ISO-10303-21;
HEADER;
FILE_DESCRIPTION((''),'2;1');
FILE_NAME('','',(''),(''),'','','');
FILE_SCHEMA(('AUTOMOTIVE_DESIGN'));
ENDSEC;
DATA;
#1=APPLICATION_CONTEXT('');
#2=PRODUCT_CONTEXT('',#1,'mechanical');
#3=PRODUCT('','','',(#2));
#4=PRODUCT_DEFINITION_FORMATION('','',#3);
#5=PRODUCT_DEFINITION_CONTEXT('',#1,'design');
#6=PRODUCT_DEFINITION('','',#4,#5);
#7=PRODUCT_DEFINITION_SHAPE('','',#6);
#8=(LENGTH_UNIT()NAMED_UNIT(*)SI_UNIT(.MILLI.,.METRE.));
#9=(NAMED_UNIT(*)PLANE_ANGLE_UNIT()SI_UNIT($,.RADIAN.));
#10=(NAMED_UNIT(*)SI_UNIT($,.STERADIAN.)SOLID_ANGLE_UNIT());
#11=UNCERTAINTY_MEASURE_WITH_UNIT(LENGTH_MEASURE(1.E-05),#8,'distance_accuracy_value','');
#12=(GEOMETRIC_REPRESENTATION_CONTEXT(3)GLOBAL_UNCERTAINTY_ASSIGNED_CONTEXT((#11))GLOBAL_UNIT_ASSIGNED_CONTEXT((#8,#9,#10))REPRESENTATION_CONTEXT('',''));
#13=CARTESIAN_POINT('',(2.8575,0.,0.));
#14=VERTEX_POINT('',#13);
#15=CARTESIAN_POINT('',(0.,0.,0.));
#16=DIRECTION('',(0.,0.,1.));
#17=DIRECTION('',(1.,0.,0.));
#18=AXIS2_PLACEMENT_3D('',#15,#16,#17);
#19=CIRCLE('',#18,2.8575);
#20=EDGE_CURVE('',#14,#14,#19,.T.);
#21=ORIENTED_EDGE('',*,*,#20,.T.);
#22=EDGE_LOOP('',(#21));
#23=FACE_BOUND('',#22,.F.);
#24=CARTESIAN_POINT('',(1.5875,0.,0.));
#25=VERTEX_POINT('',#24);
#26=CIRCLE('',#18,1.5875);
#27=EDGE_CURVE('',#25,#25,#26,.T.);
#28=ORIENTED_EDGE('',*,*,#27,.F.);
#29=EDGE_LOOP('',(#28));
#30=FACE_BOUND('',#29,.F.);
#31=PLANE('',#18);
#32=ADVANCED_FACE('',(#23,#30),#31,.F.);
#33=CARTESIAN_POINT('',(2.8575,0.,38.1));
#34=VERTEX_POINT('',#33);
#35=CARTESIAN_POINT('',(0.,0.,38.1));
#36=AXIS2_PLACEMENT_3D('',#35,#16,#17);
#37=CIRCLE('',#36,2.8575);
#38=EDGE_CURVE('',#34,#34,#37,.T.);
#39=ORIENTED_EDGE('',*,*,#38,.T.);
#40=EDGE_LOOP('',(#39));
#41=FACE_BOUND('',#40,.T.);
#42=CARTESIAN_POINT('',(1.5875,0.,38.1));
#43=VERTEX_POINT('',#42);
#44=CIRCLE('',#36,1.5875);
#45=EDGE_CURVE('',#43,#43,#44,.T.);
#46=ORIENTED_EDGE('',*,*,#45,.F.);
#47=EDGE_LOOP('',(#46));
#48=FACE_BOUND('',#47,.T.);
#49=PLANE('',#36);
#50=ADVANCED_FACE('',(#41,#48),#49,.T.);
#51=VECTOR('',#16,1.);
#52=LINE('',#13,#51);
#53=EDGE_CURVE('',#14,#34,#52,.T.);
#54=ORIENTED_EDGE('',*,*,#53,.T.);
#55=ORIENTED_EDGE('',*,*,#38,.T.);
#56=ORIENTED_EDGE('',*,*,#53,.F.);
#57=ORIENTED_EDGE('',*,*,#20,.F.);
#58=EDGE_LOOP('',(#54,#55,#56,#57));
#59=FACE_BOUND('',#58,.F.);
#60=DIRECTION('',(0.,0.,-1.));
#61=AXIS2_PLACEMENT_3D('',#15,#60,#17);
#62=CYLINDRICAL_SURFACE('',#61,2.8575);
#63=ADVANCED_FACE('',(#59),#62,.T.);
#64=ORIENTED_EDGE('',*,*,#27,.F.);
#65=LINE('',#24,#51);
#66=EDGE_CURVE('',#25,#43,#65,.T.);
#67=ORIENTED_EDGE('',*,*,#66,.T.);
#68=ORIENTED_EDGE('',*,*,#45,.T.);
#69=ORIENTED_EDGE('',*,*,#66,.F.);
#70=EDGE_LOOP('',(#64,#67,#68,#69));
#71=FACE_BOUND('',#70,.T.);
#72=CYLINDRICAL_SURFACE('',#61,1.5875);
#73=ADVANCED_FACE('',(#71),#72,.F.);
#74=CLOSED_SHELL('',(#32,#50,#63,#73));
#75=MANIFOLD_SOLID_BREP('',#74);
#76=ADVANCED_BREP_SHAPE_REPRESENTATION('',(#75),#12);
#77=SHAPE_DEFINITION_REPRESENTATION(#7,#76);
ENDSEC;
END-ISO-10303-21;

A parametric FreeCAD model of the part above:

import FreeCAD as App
import Part
import Sketcher

V = App.Vector
Q = App.Units.Quantity

doc = App.newDocument("Part")
body = doc.addObject("PartDesign::Body", "Body")

sketch1 = body.newObject("Sketcher::SketchObject", "Sketch")
sketch1.AttachmentSupport = (doc.getObject("XY_Plane"), [""])
sketch1.MapMode = "FlatFace"
sketch1.addGeometry([
    Part.Circle(V(0, 0, 0), V(0, 0, 1), 2.9),
    Part.Circle(V(0, 0, 0), V(0, 0, 1), 1.6),
], False)
sketch1.addConstraint([
    Sketcher.Constraint("Coincident", 0, 3, -1, 1),
    Sketcher.Constraint("Coincident", 1, 3, -1, 1),
    Sketcher.Constraint("Diameter", 0, Q("0.225 in")),
    Sketcher.Constraint("Diameter", 1, Q("0.125 in")),
])
pad1 = body.newObject("PartDesign::Pad", "Pad")
pad1.Profile = sketch1
pad1.Length = Q("1.5 in")

doc.recompute()
